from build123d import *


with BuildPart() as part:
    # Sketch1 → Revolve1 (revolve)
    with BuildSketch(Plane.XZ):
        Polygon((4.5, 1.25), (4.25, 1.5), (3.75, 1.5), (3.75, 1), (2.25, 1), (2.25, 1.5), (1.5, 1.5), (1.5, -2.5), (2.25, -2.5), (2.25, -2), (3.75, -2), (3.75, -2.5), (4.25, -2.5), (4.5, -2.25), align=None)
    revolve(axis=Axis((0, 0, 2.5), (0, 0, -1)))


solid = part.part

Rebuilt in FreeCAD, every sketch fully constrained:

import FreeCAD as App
import Part
import Sketcher

V = App.Vector
Q = App.Units.Quantity


def add_polygon(sketch, points):
    """Adds a closed chain of lines whose ends are joined by coincident constraints."""
    first, n = sketch.GeometryCount, len(points)
    for a, b in zip(points, points[1:] + points[:1]):
        sketch.addGeometry(Part.LineSegment(App.Vector(*a, 0), App.Vector(*b, 0)), False)
    for i in range(n):
        sketch.addConstraint(Sketcher.Constraint("Coincident", first + i, 2, first + (i + 1) % n, 1))

doc = App.newDocument("Part")
body = doc.addObject("PartDesign::Body", "Body")

sketch1 = body.newObject("Sketcher::SketchObject", "Sketch")
sketch1.AttachmentSupport = (doc.getObject("XZ_Plane"), [""])
sketch1.MapMode = "FlatFace"
add_polygon(sketch1, [(4.5, 1.25), (4.25, 1.5), (3.75, 1.5), (3.75, 1), (2.25, 1), (2.25, 1.5), (1.5, 1.5), (1.5, -2.5), (2.25, -2.5), (2.25, -2), (3.75, -2), (3.75, -2.5), (4.25, -2.5), (4.5, -2.25)])
sketch1.addConstraint([
    Sketcher.Constraint("Horizontal", 1),
    Sketcher.Constraint("Vertical", 2),
    Sketcher.Constraint("Horizontal", 3),
    Sketcher.Constraint("Vertical", 4),
    Sketcher.Constraint("Horizontal", 5),
    Sketcher.Constraint("Vertical", 6),
    Sketcher.Constraint("Horizontal", 7),
    Sketcher.Constraint("Vertical", 8),
    Sketcher.Constraint("Horizontal", 9),
    Sketcher.Constraint("Vertical", 10),
    Sketcher.Constraint("Horizontal", 11),
    Sketcher.Constraint("Vertical", 13),
    Sketcher.Constraint("Perpendicular", 0, 12),
    Sketcher.Constraint("Horizontal", 1, 2, 4, 2),
    Sketcher.Constraint("Horizontal", 7, 2, 10, 2),
    Sketcher.Constraint("Vertical", 4, 2, 7, 2),
    Sketcher.Constraint("Vertical", 2, 2, 9, 2),
    Sketcher.Constraint("Vertical", 0, 2, 11, 2),
    Sketcher.Constraint("Equal", 11, 2),
    Sketcher.Constraint("Equal", 4, 8),
    Sketcher.Constraint("Equal", 0, 12),
    Sketcher.Constraint("DistanceY", 6, 2, 6, 1, Q("4 mm")),
    Sketcher.Constraint("DistanceX", 1, 2, 1, 1, Q("0.5 mm")),
    Sketcher.Constraint("DistanceX", 3, 2, 3, 1, Q("1.5 mm")),
    Sketcher.Constraint("DistanceY", 13, 1, 13, 2, Q("3.5 mm")),
    Sketcher.Constraint("DistanceY", -1, 1, 2, 2, Q("1 mm")),
    Sketcher.Constraint("DistanceX", 5, 2, 5, 1, Q("0.75 mm")),
    Sketcher.Constraint("DistanceX", -1, 1, 5, 2, Q("1.5 mm")),
])
revolution = body.newObject("PartDesign::Revolution", "Revolution")
revolution.Profile = sketch1
revolution.ReferenceAxis = (sketch1, ["V_Axis"])
revolution.Angle = 360

doc.recompute()
